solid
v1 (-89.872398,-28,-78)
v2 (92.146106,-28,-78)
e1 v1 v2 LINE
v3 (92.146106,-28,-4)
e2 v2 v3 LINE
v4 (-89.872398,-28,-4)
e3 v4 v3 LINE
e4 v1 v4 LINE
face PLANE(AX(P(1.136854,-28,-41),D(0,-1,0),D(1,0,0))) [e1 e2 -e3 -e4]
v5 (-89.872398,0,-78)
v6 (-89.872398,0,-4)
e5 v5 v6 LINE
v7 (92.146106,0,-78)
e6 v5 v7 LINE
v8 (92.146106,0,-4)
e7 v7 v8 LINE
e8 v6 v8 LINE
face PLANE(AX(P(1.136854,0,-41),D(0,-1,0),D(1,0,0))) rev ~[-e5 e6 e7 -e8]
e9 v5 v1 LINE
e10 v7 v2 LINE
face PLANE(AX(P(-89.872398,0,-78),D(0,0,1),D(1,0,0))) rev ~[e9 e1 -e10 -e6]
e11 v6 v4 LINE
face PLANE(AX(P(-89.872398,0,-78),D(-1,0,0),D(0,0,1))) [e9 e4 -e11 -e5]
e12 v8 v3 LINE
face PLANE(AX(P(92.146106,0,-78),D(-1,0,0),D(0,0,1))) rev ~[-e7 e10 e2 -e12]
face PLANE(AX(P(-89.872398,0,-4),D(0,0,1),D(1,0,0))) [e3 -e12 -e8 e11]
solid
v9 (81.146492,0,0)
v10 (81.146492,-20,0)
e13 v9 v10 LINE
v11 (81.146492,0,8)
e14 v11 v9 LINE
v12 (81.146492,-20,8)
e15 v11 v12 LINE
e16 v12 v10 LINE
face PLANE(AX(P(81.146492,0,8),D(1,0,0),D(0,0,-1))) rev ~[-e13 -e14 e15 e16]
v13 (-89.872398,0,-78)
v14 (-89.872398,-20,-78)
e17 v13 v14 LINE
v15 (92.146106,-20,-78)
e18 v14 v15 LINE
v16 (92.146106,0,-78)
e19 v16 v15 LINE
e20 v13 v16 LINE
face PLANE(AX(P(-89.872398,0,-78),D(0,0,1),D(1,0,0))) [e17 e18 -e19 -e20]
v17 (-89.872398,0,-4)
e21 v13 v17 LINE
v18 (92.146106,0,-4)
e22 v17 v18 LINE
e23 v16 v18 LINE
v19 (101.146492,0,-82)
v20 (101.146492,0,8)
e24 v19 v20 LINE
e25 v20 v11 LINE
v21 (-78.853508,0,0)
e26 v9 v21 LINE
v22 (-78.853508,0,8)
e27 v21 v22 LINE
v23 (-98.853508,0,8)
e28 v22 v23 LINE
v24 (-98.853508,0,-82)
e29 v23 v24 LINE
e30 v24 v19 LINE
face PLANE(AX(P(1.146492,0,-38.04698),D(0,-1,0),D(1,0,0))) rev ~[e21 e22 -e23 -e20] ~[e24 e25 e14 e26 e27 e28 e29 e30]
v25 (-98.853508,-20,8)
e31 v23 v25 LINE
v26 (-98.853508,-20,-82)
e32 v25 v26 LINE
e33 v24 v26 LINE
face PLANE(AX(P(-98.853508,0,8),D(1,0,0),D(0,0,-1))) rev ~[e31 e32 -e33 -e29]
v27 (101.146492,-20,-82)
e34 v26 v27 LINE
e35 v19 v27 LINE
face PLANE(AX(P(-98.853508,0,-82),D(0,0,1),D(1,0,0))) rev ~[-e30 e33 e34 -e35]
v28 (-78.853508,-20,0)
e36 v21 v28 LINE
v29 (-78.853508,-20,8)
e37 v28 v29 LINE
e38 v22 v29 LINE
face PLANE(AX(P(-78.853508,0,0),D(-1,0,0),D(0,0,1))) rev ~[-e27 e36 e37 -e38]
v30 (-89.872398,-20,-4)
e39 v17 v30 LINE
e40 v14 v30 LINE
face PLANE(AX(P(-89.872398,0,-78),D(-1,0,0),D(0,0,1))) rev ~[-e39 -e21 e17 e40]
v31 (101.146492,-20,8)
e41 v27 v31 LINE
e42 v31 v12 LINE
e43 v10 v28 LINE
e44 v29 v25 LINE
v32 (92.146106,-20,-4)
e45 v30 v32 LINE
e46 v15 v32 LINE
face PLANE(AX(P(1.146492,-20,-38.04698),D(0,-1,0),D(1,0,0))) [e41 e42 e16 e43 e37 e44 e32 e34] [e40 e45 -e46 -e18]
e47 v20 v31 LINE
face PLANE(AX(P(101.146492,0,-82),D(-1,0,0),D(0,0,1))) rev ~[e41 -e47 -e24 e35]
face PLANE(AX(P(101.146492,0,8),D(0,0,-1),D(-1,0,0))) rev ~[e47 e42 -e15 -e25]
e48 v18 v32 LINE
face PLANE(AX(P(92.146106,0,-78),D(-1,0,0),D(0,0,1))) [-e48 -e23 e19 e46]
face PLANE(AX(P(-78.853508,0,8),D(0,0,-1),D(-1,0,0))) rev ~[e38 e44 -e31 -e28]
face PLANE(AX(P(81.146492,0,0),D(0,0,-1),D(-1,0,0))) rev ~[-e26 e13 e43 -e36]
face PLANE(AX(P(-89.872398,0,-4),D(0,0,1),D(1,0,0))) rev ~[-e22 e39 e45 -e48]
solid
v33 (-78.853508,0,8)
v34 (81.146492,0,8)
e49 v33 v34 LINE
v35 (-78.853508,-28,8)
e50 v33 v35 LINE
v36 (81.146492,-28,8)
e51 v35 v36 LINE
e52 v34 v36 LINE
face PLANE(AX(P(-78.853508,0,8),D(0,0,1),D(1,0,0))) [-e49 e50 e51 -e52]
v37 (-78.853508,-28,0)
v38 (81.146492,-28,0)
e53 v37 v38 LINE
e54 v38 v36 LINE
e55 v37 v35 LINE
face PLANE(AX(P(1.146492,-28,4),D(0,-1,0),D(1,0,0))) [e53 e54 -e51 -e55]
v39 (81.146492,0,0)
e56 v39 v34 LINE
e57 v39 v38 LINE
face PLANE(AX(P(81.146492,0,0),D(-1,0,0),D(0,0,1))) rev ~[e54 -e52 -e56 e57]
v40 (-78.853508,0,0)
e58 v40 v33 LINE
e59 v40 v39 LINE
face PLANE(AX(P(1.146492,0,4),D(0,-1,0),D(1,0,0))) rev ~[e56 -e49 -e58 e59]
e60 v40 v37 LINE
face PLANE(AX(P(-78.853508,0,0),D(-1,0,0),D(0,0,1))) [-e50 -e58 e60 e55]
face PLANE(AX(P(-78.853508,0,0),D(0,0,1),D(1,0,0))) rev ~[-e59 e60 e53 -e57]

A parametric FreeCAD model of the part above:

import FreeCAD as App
import Part
import Sketcher
Q = App.Units.Quantity

doc = App.newDocument("Part")
body = doc.addObject("PartDesign::Body", "Body")
body.AllowCompound = True

sketch1 = body.newObject("Sketcher::SketchObject", "Sketch")
sketch1.AttachmentSupport = (doc.getObject("XZ_Plane"), [""])
sketch1.MapMode = "FlatFace"
sketch1.addGeometry(Part.LineSegment(App.Vector(-90, -4, 0), App.Vector(-90, -78, 0)), False)
sketch1.addGeometry(Part.LineSegment(App.Vector(-90, -78, 0), App.Vector(92, -78, 0)), False)
sketch1.addGeometry(Part.LineSegment(App.Vector(92, -78, 0), App.Vector(92, -4, 0)), False)
sketch1.addGeometry(Part.LineSegment(App.Vector(92, -4, 0), App.Vector(-90, -4, 0)), False)
sketch1.addGeometry(Part.LineSegment(App.Vector(-79, 8, 0), App.Vector(-79, 0, 0)), False)
sketch1.addGeometry(Part.LineSegment(App.Vector(-79, 0, 0), App.Vector(81, 0, 0)), False)
sketch1.addGeometry(Part.LineSegment(App.Vector(81, 0, 0), App.Vector(81, 8, 0)), False)
sketch1.addGeometry(Part.LineSegment(App.Vector(81, 8, 0), App.Vector(-79, 8, 0)), False)
sketch1.addConstraint(Sketcher.Constraint("Coincident", 0, 2, 1, 1))
sketch1.addConstraint(Sketcher.Constraint("Coincident", 1, 2, 2, 1))
sketch1.addConstraint(Sketcher.Constraint("Coincident", 2, 2, 3, 1))
sketch1.addConstraint(Sketcher.Constraint("Coincident", 3, 2, 0, 1))
sketch1.addConstraint(Sketcher.Constraint("Coincident", 4, 2, 5, 1))
sketch1.addConstraint(Sketcher.Constraint("Coincident", 5, 2, 6, 1))
sketch1.addConstraint(Sketcher.Constraint("Coincident", 6, 2, 7, 1))
sketch1.addConstraint(Sketcher.Constraint("Coincident", 7, 2, 4, 1))
sketch1.addConstraint(Sketcher.Constraint("Vertical", 0))
sketch1.addConstraint(Sketcher.Constraint("Horizontal", 1))
sketch1.addConstraint(Sketcher.Constraint("Vertical", 2))
sketch1.addConstraint(Sketcher.Constraint("Horizontal", 3))
sketch1.addConstraint(Sketcher.Constraint("Vertical", 4))
sketch1.addConstraint(Sketcher.Constraint("Horizontal", 5))
sketch1.addConstraint(Sketcher.Constraint("Vertical", 6))
sketch1.addConstraint(Sketcher.Constraint("Horizontal", 7))
sketch1.addConstraint(Sketcher.Constraint("PointOnObject", 4, 2, -1))
sketch1.addConstraint(Sketcher.Constraint("DistanceX", 5, 1, 5, 2, Q("160 mm")))
sketch1.addConstraint(Sketcher.Constraint("DistanceY", 0, 2, 0, 1, Q("74 mm")))
sketch1.addConstraint(Sketcher.Constraint("DistanceY", 4, 2, 4, 1, Q("8 mm")))
sketch1.addConstraint(Sketcher.Constraint("DistanceY", 0, 2, -1, 1, Q("78 mm")))
sketch1.addConstraint(Sketcher.Constraint("DistanceX", 1, 1, 1, 2, Q("182.018503 mm")))
sketch1.addConstraint(Sketcher.Constraint("DistanceX", 4, 2, -1, 1, Q("78.853508 mm")))
sketch1.addConstraint(Sketcher.Constraint("DistanceX", 3, 2, 4, 2, Q("11.01889 mm")))
pad1 = body.newObject("PartDesign::Pad", "Pad")
pad1.Profile = sketch1
pad1.Length = 28
body2 = doc.addObject("PartDesign::Body", "Body001")

sketch2 = body2.newObject("Sketcher::SketchObject", "Sketch001")
sketch2.AttachmentSupport = (doc.getObject("XZ_Plane001"), [""])
sketch2.MapMode = "FlatFace"
sketch2.addGeometry(Part.LineSegment(App.Vector(-79, 8, 0), App.Vector(-99, 8, 0)), False)
sketch2.addGeometry(Part.LineSegment(App.Vector(-99, 8, 0), App.Vector(-99, -82, 0)), False)
sketch2.addGeometry(Part.LineSegment(App.Vector(-99, -82, 0), App.Vector(101, -82, 0)), False)
sketch2.addGeometry(Part.LineSegment(App.Vector(101, -82, 0), App.Vector(101, 8, 0)), False)
sketch2.addGeometry(Part.LineSegment(App.Vector(101, 8, 0), App.Vector(81, 8, 0)), False)
sketch2.addGeometry(Part.LineSegment(App.Vector(81, 8, 0), App.Vector(81, 0, 0)), False)
sketch2.addGeometry(Part.LineSegment(App.Vector(81, 0, 0), App.Vector(-79, 0, 0)), False)
sketch2.addGeometry(Part.LineSegment(App.Vector(-79, 0, 0), App.Vector(-79, 8, 0)), False)
sketch2.addGeometry(Part.LineSegment(App.Vector(92, -78, 0), App.Vector(-90, -78, 0)), False)
sketch2.addGeometry(Part.LineSegment(App.Vector(-90, -78, 0), App.Vector(-90, -4, 0)), False)
sketch2.addGeometry(Part.LineSegment(App.Vector(-90, -4, 0), App.Vector(92, -4, 0)), False)
sketch2.addGeometry(Part.LineSegment(App.Vector(92, -4, 0), App.Vector(92, -78, 0)), False)
sketch2.addConstraint(Sketcher.Constraint("Coincident", 0, 2, 1, 1))
sketch2.addConstraint(Sketcher.Constraint("Coincident", 1, 2, 2, 1))
sketch2.addConstraint(Sketcher.Constraint("Coincident", 2, 2, 3, 1))
sketch2.addConstraint(Sketcher.Constraint("Coincident", 3, 2, 4, 1))
sketch2.addConstraint(Sketcher.Constraint("Coincident", 4, 2, 5, 1))
sketch2.addConstraint(Sketcher.Constraint("Coincident", 5, 2, 6, 1))
sketch2.addConstraint(Sketcher.Constraint("Coincident", 6, 2, 7, 1))
sketch2.addConstraint(Sketcher.Constraint("Coincident", 7, 2, 0, 1))
sketch2.addConstraint(Sketcher.Constraint("Coincident", 8, 2, 9, 1))
sketch2.addConstraint(Sketcher.Constraint("Coincident", 9, 2, 10, 1))
sketch2.addConstraint(Sketcher.Constraint("Coincident", 10, 2, 11, 1))
sketch2.addConstraint(Sketcher.Constraint("Coincident", 11, 2, 8, 1))
sketch2.addConstraint(Sketcher.Constraint("Horizontal", 0))
sketch2.addConstraint(Sketcher.Constraint("Vertical", 1))
sketch2.addConstraint(Sketcher.Constraint("Horizontal", 2))
sketch2.addConstraint(Sketcher.Constraint("Vertical", 3))
sketch2.addConstraint(Sketcher.Constraint("Horizontal", 4))
sketch2.addConstraint(Sketcher.Constraint("Vertical", 5))
sketch2.addConstraint(Sketcher.Constraint("Horizontal", 6))
sketch2.addConstraint(Sketcher.Constraint("Vertical", 7))
sketch2.addConstraint(Sketcher.Constraint("Horizontal", 8))
sketch2.addConstraint(Sketcher.Constraint("Vertical", 9))
sketch2.addConstraint(Sketcher.Constraint("Horizontal", 10))
sketch2.addConstraint(Sketcher.Constraint("Vertical", 11))
sketch2.addConstraint(Sketcher.Constraint("PointOnObject", 5, 2, -1))
sketch2.addConstraint(Sketcher.Constraint("Horizontal", 0, 2, 3, 2))
sketch2.addConstraint(Sketcher.Constraint("Equal", 0, 4))
sketch2.addConstraint(Sketcher.Constraint("DistanceX", 0, 2, 0, 1, Q("20 mm")))
sketch2.addConstraint(Sketcher.Constraint("DistanceX", 2, 1, 2, 2, Q("200 mm")))
sketch2.addConstraint(Sketcher.Constraint("DistanceY", 1, 2, 1, 1, Q("90 mm")))
sketch2.addConstraint(Sketcher.Constraint("DistanceY", 5, 2, 5, 1, Q("8 mm")))
sketch2.addConstraint(Sketcher.Constraint("DistanceY", 9, 1, 9, 2, Q("74 mm")))
sketch2.addConstraint(Sketcher.Constraint("DistanceY", 8, 2, -1, 1, Q("78 mm")))
sketch2.addConstraint(Sketcher.Constraint("DistanceX", 8, 2, 8, 1, Q("182.018503 mm")))
sketch2.addConstraint(Sketcher.Constraint("DistanceX", 0, 2, -1, 1, Q("98.853508 mm")))
sketch2.addConstraint(Sketcher.Constraint("DistanceX", 1, 2, 8, 2, Q("8.98111 mm")))
pad2 = body2.newObject("PartDesign::Pad", "Pad001")
pad2.Profile = sketch2
pad2.Length = 20

doc.recompute()
